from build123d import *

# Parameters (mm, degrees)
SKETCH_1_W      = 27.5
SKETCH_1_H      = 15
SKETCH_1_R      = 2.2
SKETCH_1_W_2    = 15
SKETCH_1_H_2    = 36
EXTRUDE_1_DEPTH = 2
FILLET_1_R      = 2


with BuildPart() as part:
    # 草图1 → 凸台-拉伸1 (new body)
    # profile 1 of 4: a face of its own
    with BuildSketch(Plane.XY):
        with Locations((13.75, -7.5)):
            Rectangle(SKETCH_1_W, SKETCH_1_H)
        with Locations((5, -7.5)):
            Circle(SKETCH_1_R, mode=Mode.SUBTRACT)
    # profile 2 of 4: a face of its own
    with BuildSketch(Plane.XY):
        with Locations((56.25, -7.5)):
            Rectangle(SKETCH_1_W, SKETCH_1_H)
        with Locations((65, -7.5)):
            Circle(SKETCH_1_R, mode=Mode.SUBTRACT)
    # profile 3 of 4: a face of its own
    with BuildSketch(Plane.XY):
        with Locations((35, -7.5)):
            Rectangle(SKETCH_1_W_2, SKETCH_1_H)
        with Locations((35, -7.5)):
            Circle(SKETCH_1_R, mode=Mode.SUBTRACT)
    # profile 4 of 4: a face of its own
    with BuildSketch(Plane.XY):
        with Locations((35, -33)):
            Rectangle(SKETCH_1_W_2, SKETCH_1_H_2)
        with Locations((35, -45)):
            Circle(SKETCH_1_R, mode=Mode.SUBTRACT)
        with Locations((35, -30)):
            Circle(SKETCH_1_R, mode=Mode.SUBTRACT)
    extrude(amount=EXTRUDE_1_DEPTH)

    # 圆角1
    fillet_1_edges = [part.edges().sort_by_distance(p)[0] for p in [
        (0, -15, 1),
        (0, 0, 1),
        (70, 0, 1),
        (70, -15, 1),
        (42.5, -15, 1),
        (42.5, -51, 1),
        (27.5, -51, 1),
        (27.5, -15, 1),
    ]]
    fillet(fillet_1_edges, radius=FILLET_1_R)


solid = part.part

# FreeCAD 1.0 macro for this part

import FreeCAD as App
import Part
import Sketcher


def edges_at(feature, points):
    """Names of the edges that pass closest to the given points."""
    edges = feature.Shape.Edges
    near = lambda p: min(range(len(edges)), key=lambda i: edges[i].distToShape(Part.Vertex(*p))[0])
    return sorted({f"Edge{near(p) + 1}" for p in points})


def add_polygon(sketch, points):
    """Adds a closed chain of lines whose ends are joined by coincident constraints."""
    first, n = sketch.GeometryCount, len(points)
    for a, b in zip(points, points[1:] + points[:1]):
        sketch.addGeometry(Part.LineSegment(App.Vector(*a, 0), App.Vector(*b, 0)), False)
    for i in range(n):
        sketch.addConstraint(Sketcher.Constraint("Coincident", first + i, 2, first + (i + 1) % n, 1))

doc = App.newDocument("Part")
body = doc.addObject("PartDesign::Body", "Body")

# Sketch on XY plane
sketch1 = body.newObject("Sketcher::SketchObject", "Sketch")
sketch1.AttachmentSupport = (doc.getObject("XY_Plane"), [""])
sketch1.MapMode = "FlatFace"
add_polygon(sketch1, [(0, 0), (0, -15), (27.5, -15), (27.5, -51), (42.5, -51), (42.5, -15), (70, -15), (70, 0)])  # lines 0-7
sketch1.addGeometry(Part.Circle(App.Vector(5, -7.5, 0), App.Vector(0, 0, 1), 2.2), False)  # 8
sketch1.addGeometry(Part.Circle(App.Vector(35, -7.5, 0), App.Vector(0, 0, 1), 2.2), False)  # 9
sketch1.addGeometry(Part.Circle(App.Vector(35, -30, 0), App.Vector(0, 0, 1), 2.2), False)  # 10
sketch1.addGeometry(Part.Circle(App.Vector(35, -45, 0), App.Vector(0, 0, 1), 2.2), False)  # 11
sketch1.addGeometry(Part.Circle(App.Vector(65, -7.5, 0), App.Vector(0, 0, 1), 2.2), False)  # 12
sketch1.addConstraint(Sketcher.Constraint("Vertical", 0))
sketch1.addConstraint(Sketcher.Constraint("Horizontal", 1))
sketch1.addConstraint(Sketcher.Constraint("Vertical", 2))
sketch1.addConstraint(Sketcher.Constraint("Horizontal", 3))
sketch1.addConstraint(Sketcher.Constraint("Vertical", 4))
sketch1.addConstraint(Sketcher.Constraint("Horizontal", 5))
sketch1.addConstraint(Sketcher.Constraint("Vertical", 6))
sketch1.addConstraint(Sketcher.Constraint("Horizontal", 7))
sketch1.addConstraint(Sketcher.Constraint("Coincident", 7, 2, -1, 1))
sketch1.addConstraint(Sketcher.Constraint("Equal", 8, 9))
sketch1.addConstraint(Sketcher.Constraint("Equal", 9, 10))
sketch1.addConstraint(Sketcher.Constraint("Equal", 10, 11))
sketch1.addConstraint(Sketcher.Constraint("Equal", 11, 12))
sketch1.addConstraint(Sketcher.Constraint("Horizontal", 8, 3, 9, 3))
sketch1.addConstraint(Sketcher.Constraint("Horizontal", 9, 3, 12, 3))
sketch1.addConstraint(Sketcher.Constraint("Horizontal", 1, 2, 4, 2))
sketch1.addConstraint(Sketcher.Constraint("Vertical", 9, 3, 10, 3))
sketch1.addConstraint(Sketcher.Constraint("Vertical", 10, 3, 11, 3))
sketch1.addConstraint(Sketcher.Constraint("Equal", 1, 5))
sketch1.addConstraint(Sketcher.Constraint("Equal", 3, 0))
sketch1.addConstraint(Sketcher.Constraint("Diameter", 8, 4.4))
sketch1.addConstraint(Sketcher.Constraint("DistanceX", 3, 1, 3, 2, 15.0))
sketch1.addConstraint(Sketcher.Constraint("DistanceX", 7, 2, 7, 1, 70.0))
sketch1.addConstraint(Sketcher.Constraint("DistanceY", 2, 2, 2, 1, 36.0))
sketch1.addConstraint(Sketcher.Constraint("DistanceX", -1, 1, 8, 3, 5.0))
sketch1.addConstraint(Sketcher.Constraint("DistanceX", -1, 1, 9, 3, 35.0))
sketch1.addConstraint(Sketcher.Constraint("DistanceY", 10, 3, -1, 1, 30.0))
sketch1.addConstraint(Sketcher.Constraint("DistanceY", 11, 3, -1, 1, 45.0))
sketch1.addConstraint(Sketcher.Constraint("DistanceX", -1, 1, 12, 3, 65.0))
sketch1.addConstraint(Sketcher.Constraint("DistanceY", 8, 3, -1, 1, 7.5))
pad1 = body.newObject("PartDesign::Pad", "Pad")
pad1.Profile = sketch1
pad1.Length = 2
doc.recompute()

fillet = body.newObject("PartDesign::Fillet", "Fillet")
fillet.Base = (pad1, edges_at(pad1, [
    (0, -15, 1),
    (0, 0, 1),
    (70, 0, 1),
    (70, -15, 1),
    (42.5, -15, 1),
    (42.5, -51, 1),
    (27.5, -51, 1),
    (27.5, -15, 1),
]))
fillet.Radius = 2

doc.recompute()
